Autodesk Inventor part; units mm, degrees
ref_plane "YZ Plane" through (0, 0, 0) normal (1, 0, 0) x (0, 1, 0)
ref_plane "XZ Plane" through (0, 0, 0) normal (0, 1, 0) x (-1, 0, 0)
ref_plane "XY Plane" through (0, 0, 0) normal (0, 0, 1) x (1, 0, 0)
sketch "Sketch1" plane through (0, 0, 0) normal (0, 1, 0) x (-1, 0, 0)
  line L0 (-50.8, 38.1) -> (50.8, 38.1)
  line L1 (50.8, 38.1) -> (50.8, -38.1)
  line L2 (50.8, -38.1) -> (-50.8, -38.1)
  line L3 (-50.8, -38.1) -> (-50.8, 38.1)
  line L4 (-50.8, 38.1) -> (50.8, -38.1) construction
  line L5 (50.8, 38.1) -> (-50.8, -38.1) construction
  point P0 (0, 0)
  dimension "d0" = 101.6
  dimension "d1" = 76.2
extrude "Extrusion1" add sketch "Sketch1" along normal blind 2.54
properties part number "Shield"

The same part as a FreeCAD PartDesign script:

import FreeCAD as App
import Part
import Sketcher
Q = App.Units.Quantity


def add_polygon(sketch, points):
    """Adds a closed chain of lines whose ends are joined by coincident constraints."""
    first, n = sketch.GeometryCount, len(points)
    for a, b in zip(points, points[1:] + points[:1]):
        sketch.addGeometry(Part.LineSegment(App.Vector(*a, 0), App.Vector(*b, 0)), False)
    for i in range(n):
        sketch.addConstraint(Sketcher.Constraint("Coincident", first + i, 2, first + (i + 1) % n, 1))

doc = App.newDocument("Part")
body = doc.addObject("PartDesign::Body", "Body")

# Sketch on XZ plane
sketch1 = body.newObject("Sketcher::SketchObject", "Sketch")
sketch1.AttachmentSupport = (doc.getObject("XZ_Plane"), [""])
sketch1.MapMode = "FlatFace"
add_polygon(sketch1, [(-50.8, 38.1), (50.8, 38.1), (50.8, -38.1), (-50.8, -38.1)])  # lines 0-3
sketch1.addConstraint(Sketcher.Constraint("Horizontal", 0))
sketch1.addConstraint(Sketcher.Constraint("Vertical", 1))
sketch1.addConstraint(Sketcher.Constraint("Horizontal", 2))
sketch1.addConstraint(Sketcher.Constraint("Vertical", 3))
sketch1.addConstraint(Sketcher.Constraint("Symmetric", 0, 2, 2, 2, -1, 1))
sketch1.addConstraint(Sketcher.Constraint("DistanceX", 0, 1, 0, 2, Q("4 in")))
sketch1.addConstraint(Sketcher.Constraint("DistanceY", 1, 2, 1, 1, Q("3 in")))
pad1 = body.newObject("PartDesign::Pad", "Pad")
pad1.Profile = sketch1
pad1.Length = Q("0.1 in")
pad1.Reversed = True

doc.recompute()
